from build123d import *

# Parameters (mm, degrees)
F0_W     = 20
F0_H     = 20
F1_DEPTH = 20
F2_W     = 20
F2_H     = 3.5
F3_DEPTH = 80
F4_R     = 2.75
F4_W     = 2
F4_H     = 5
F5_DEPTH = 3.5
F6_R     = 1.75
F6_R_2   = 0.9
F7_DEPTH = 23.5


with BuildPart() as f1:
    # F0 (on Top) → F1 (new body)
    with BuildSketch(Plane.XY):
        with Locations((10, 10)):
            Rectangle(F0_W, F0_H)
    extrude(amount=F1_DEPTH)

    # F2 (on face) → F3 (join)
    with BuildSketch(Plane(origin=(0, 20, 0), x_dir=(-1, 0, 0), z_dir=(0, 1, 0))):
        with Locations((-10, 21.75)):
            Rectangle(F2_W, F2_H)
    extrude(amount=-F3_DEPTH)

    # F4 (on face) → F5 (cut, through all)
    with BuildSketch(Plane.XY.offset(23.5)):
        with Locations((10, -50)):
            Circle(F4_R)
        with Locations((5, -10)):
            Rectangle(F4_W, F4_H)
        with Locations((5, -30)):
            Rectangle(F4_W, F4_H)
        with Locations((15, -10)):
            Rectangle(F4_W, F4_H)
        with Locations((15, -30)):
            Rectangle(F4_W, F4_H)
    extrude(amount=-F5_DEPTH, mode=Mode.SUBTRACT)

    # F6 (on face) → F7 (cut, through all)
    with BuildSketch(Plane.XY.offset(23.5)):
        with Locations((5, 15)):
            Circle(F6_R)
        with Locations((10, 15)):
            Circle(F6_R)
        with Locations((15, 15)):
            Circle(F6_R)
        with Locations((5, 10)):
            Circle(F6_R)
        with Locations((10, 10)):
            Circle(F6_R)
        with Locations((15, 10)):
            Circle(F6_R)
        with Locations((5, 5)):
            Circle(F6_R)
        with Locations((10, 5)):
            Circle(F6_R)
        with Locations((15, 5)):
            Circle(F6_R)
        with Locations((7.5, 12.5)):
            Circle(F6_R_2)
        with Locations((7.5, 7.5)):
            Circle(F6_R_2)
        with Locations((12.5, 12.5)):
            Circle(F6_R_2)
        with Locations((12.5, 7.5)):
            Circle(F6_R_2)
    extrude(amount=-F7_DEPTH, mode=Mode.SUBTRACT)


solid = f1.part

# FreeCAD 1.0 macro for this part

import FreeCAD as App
import Part
import Sketcher
Q = App.Units.Quantity

doc = App.newDocument("Part")
body = doc.addObject("PartDesign::Body", "Body")

sketch1 = body.newObject("Sketcher::SketchObject", "Sketch")
sketch1.AttachmentSupport = (doc.getObject("XY_Plane"), [""])
sketch1.MapMode = "FlatFace"
sketch1.addGeometry(Part.LineSegment(App.Vector(0, 20, 0), App.Vector(0, 0, 0)), False)
sketch1.addGeometry(Part.LineSegment(App.Vector(0, 0, 0), App.Vector(20, 0, 0)), False)
sketch1.addGeometry(Part.LineSegment(App.Vector(20, 0, 0), App.Vector(20, 20, 0)), False)
sketch1.addGeometry(Part.LineSegment(App.Vector(20, 20, 0), App.Vector(0, 20, 0)), False)
sketch1.addConstraint(Sketcher.Constraint("Coincident", 0, 2, 1, 1))
sketch1.addConstraint(Sketcher.Constraint("Coincident", 1, 2, 2, 1))
sketch1.addConstraint(Sketcher.Constraint("Coincident", 2, 2, 3, 1))
sketch1.addConstraint(Sketcher.Constraint("Coincident", 3, 2, 0, 1))
sketch1.addConstraint(Sketcher.Constraint("Vertical", 0))
sketch1.addConstraint(Sketcher.Constraint("Horizontal", 1))
sketch1.addConstraint(Sketcher.Constraint("Vertical", 2))
sketch1.addConstraint(Sketcher.Constraint("Horizontal", 3))
sketch1.addConstraint(Sketcher.Constraint("Coincident", 0, 2, -1, 1))
sketch1.addConstraint(Sketcher.Constraint("Equal", 3, 0))
sketch1.addConstraint(Sketcher.Constraint("DistanceX", 1, 1, 1, 2, Q("20 mm")))
pad1 = body.newObject("PartDesign::Pad", "Pad")
pad1.Profile = sketch1
pad1.Length = 20

sketch2 = body.newObject("Sketcher::SketchObject", "Sketch001")
sketch2.AttachmentSupport = (doc.getObject("XZ_Plane"), [""])
sketch2.MapMode = "FlatFace"
sketch2.AttachmentOffset = App.Placement(App.Vector(0, 0, -20), App.Rotation())
sketch2.addGeometry(Part.LineSegment(App.Vector(20, 23.5, 0), App.Vector(20, 20, 0)), False)
sketch2.addGeometry(Part.LineSegment(App.Vector(20, 20, 0), App.Vector(0, 20, 0)), False)
sketch2.addGeometry(Part.LineSegment(App.Vector(0, 20, 0), App.Vector(0, 23.5, 0)), False)
sketch2.addGeometry(Part.LineSegment(App.Vector(0, 23.5, 0), App.Vector(20, 23.5, 0)), False)
sketch2.addConstraint(Sketcher.Constraint("Coincident", 0, 2, 1, 1))
sketch2.addConstraint(Sketcher.Constraint("Coincident", 1, 2, 2, 1))
sketch2.addConstraint(Sketcher.Constraint("Coincident", 2, 2, 3, 1))
sketch2.addConstraint(Sketcher.Constraint("Coincident", 3, 2, 0, 1))
sketch2.addConstraint(Sketcher.Constraint("Vertical", 0))
sketch2.addConstraint(Sketcher.Constraint("Horizontal", 1))
sketch2.addConstraint(Sketcher.Constraint("Vertical", 2))
sketch2.addConstraint(Sketcher.Constraint("Horizontal", 3))
sketch2.addConstraint(Sketcher.Constraint("PointOnObject", 1, 2, -2))
sketch2.addConstraint(Sketcher.Constraint("DistanceX", 1, 2, 1, 1, Q("20 mm")))
sketch2.addConstraint(Sketcher.Constraint("DistanceY", 0, 2, 0, 1, Q("3.5 mm")))
sketch2.addConstraint(Sketcher.Constraint("DistanceY", -1, 1, 0, 2, Q("20 mm")))
pad2 = body.newObject("PartDesign::Pad", "Pad001")
pad2.Profile = sketch2
pad2.Length = 80

sketch3 = body.newObject("Sketcher::SketchObject", "Sketch002")
sketch3.AttachmentSupport = (doc.getObject("XY_Plane"), [""])
sketch3.MapMode = "FlatFace"
sketch3.AttachmentOffset = App.Placement(App.Vector(0, 0, 23.5), App.Rotation())
sketch3.addGeometry(Part.Circle(App.Vector(10, -50, 0), App.Vector(0, 0, 1), 2.8), False)
sketch3.addGeometry(Part.LineSegment(App.Vector(4, -7.5, 0), App.Vector(4, -12.5, 0)), False)
sketch3.addGeometry(Part.LineSegment(App.Vector(4, -12.5, 0), App.Vector(6, -12.5, 0)), False)
sketch3.addGeometry(Part.LineSegment(App.Vector(6, -12.5, 0), App.Vector(6, -7.5, 0)), False)
sketch3.addGeometry(Part.LineSegment(App.Vector(6, -7.5, 0), App.Vector(4, -7.5, 0)), False)
sketch3.addGeometry(Part.LineSegment(App.Vector(4, -27.5, 0), App.Vector(4, -32.5, 0)), False)
sketch3.addGeometry(Part.LineSegment(App.Vector(4, -32.5, 0), App.Vector(6, -32.5, 0)), False)
sketch3.addGeometry(Part.LineSegment(App.Vector(6, -32.5, 0), App.Vector(6, -27.5, 0)), False)
sketch3.addGeometry(Part.LineSegment(App.Vector(6, -27.5, 0), App.Vector(4, -27.5, 0)), False)
sketch3.addGeometry(Part.LineSegment(App.Vector(14, -7.5, 0), App.Vector(14, -12.5, 0)), False)
sketch3.addGeometry(Part.LineSegment(App.Vector(14, -12.5, 0), App.Vector(16, -12.5, 0)), False)
sketch3.addGeometry(Part.LineSegment(App.Vector(16, -12.5, 0), App.Vector(16, -7.5, 0)), False)
sketch3.addGeometry(Part.LineSegment(App.Vector(16, -7.5, 0), App.Vector(14, -7.5, 0)), False)
sketch3.addGeometry(Part.LineSegment(App.Vector(14, -27.5, 0), App.Vector(14, -32.5, 0)), False)
sketch3.addGeometry(Part.LineSegment(App.Vector(14, -32.5, 0), App.Vector(16, -32.5, 0)), False)
sketch3.addGeometry(Part.LineSegment(App.Vector(16, -32.5, 0), App.Vector(16, -27.5, 0)), False)
sketch3.addGeometry(Part.LineSegment(App.Vector(16, -27.5, 0), App.Vector(14, -27.5, 0)), False)
sketch3.addConstraint(Sketcher.Constraint("Coincident", 1, 2, 2, 1))
sketch3.addConstraint(Sketcher.Constraint("Coincident", 2, 2, 3, 1))
sketch3.addConstraint(Sketcher.Constraint("Coincident", 3, 2, 4, 1))
sketch3.addConstraint(Sketcher.Constraint("Coincident", 4, 2, 1, 1))
sketch3.addConstraint(Sketcher.Constraint("Coincident", 5, 2, 6, 1))
sketch3.addConstraint(Sketcher.Constraint("Coincident", 6, 2, 7, 1))
sketch3.addConstraint(Sketcher.Constraint("Coincident", 7, 2, 8, 1))
sketch3.addConstraint(Sketcher.Constraint("Coincident", 8, 2, 5, 1))
sketch3.addConstraint(Sketcher.Constraint("Coincident", 9, 2, 10, 1))
sketch3.addConstraint(Sketcher.Constraint("Coincident", 10, 2, 11, 1))
sketch3.addConstraint(Sketcher.Constraint("Coincident", 11, 2, 12, 1))
sketch3.addConstraint(Sketcher.Constraint("Coincident", 12, 2, 9, 1))
sketch3.addConstraint(Sketcher.Constraint("Coincident", 13, 2, 14, 1))
sketch3.addConstraint(Sketcher.Constraint("Coincident", 14, 2, 15, 1))
sketch3.addConstraint(Sketcher.Constraint("Coincident", 15, 2, 16, 1))
sketch3.addConstraint(Sketcher.Constraint("Coincident", 16, 2, 13, 1))
sketch3.addConstraint(Sketcher.Constraint("Vertical", 1))
sketch3.addConstraint(Sketcher.Constraint("Horizontal", 2))
sketch3.addConstraint(Sketcher.Constraint("Vertical", 3))
sketch3.addConstraint(Sketcher.Constraint("Horizontal", 4))
sketch3.addConstraint(Sketcher.Constraint("Vertical", 5))
sketch3.addConstraint(Sketcher.Constraint("Horizontal", 6))
sketch3.addConstraint(Sketcher.Constraint("Vertical", 7))
sketch3.addConstraint(Sketcher.Constraint("Horizontal", 8))
sketch3.addConstraint(Sketcher.Constraint("Vertical", 9))
sketch3.addConstraint(Sketcher.Constraint("Horizontal", 10))
sketch3.addConstraint(Sketcher.Constraint("Vertical", 11))
sketch3.addConstraint(Sketcher.Constraint("Horizontal", 12))
sketch3.addConstraint(Sketcher.Constraint("Vertical", 13))
sketch3.addConstraint(Sketcher.Constraint("Horizontal", 14))
sketch3.addConstraint(Sketcher.Constraint("Vertical", 15))
sketch3.addConstraint(Sketcher.Constraint("Horizontal", 16))
sketch3.addConstraint(Sketcher.Constraint("Horizontal", 2, 2, 9, 2))
sketch3.addConstraint(Sketcher.Constraint("Horizontal", 4, 2, 11, 2))
sketch3.addConstraint(Sketcher.Constraint("Horizontal", 6, 2, 13, 2))
sketch3.addConstraint(Sketcher.Constraint("Horizontal", 8, 2, 15, 2))
sketch3.addConstraint(Sketcher.Constraint("Vertical", 4, 2, 5, 2))
sketch3.addConstraint(Sketcher.Constraint("Vertical", 3, 2, 6, 2))
sketch3.addConstraint(Sketcher.Constraint("Vertical", 12, 2, 13, 2))
sketch3.addConstraint(Sketcher.Constraint("Vertical", 11, 2, 14, 2))
sketch3.addConstraint(Sketcher.Constraint("Equal", 8, 10))
sketch3.addConstraint(Sketcher.Constraint("Equal", 3, 5))
sketch3.addConstraint(Sketcher.Constraint("Diameter", 0, Q("5.5 mm")))
sketch3.addConstraint(Sketcher.Constraint("DistanceX", 2, 1, 2, 2, Q("2 mm")))
sketch3.addConstraint(Sketcher.Constraint("DistanceY", 1, 2, 1, 1, Q("5 mm")))
sketch3.addConstraint(Sketcher.Constraint("DistanceX", -1, 1, 0, 3, Q("10 mm")))
sketch3.addConstraint(Sketcher.Constraint("DistanceY", 0, 3, -1, 1, Q("50 mm")))
sketch3.addConstraint(Sketcher.Constraint("DistanceX", -1, 1, 1, 2, Q("4 mm")))
sketch3.addConstraint(Sketcher.Constraint("DistanceX", -1, 1, 9, 2, Q("14 mm")))
sketch3.addConstraint(Sketcher.Constraint("DistanceY", 5, 2, 1, 2, Q("20 mm")))
sketch3.addConstraint(Sketcher.Constraint("DistanceY", 1, 2, -1, 1, Q("12.5 mm")))
pocket1 = body.newObject("PartDesign::Pocket", "Pocket")
pocket1.Profile = sketch3
pocket1.Type = "ThroughAll"

sketch4 = body.newObject("Sketcher::SketchObject", "Sketch003")
sketch4.AttachmentSupport = (doc.getObject("XY_Plane"), [""])
sketch4.MapMode = "FlatFace"
sketch4.AttachmentOffset = App.Placement(App.Vector(0, 0, 23.5), App.Rotation())
sketch4.addGeometry(Part.Circle(App.Vector(5, 15, 0), App.Vector(0, 0, 1), 1.8), False)
sketch4.addGeometry(Part.Circle(App.Vector(10, 15, 0), App.Vector(0, 0, 1), 1.8), False)
sketch4.addGeometry(Part.Circle(App.Vector(15, 15, 0), App.Vector(0, 0, 1), 1.8), False)
sketch4.addGeometry(Part.Circle(App.Vector(5, 10, 0), App.Vector(0, 0, 1), 1.8), False)
sketch4.addGeometry(Part.Circle(App.Vector(10, 10, 0), App.Vector(0, 0, 1), 1.8), False)
sketch4.addGeometry(Part.Circle(App.Vector(15, 10, 0), App.Vector(0, 0, 1), 1.8), False)
sketch4.addGeometry(Part.Circle(App.Vector(5, 5, 0), App.Vector(0, 0, 1), 1.8), False)
sketch4.addGeometry(Part.Circle(App.Vector(10, 5, 0), App.Vector(0, 0, 1), 1.8), False)
sketch4.addGeometry(Part.Circle(App.Vector(15, 5, 0), App.Vector(0, 0, 1), 1.8), False)
sketch4.addGeometry(Part.Circle(App.Vector(7.5, 12.5, 0), App.Vector(0, 0, 1), 0.9), False)
sketch4.addGeometry(Part.Circle(App.Vector(7.5, 7.5, 0), App.Vector(0, 0, 1), 0.9), False)
sketch4.addGeometry(Part.Circle(App.Vector(12.5, 12.5, 0), App.Vector(0, 0, 1), 0.9), False)
sketch4.addGeometry(Part.Circle(App.Vector(12.5, 7.5, 0), App.Vector(0, 0, 1), 0.9), False)
sketch4.addConstraint(Sketcher.Constraint("Equal", 0, 1))
sketch4.addConstraint(Sketcher.Constraint("Equal", 1, 2))
sketch4.addConstraint(Sketcher.Constraint("Equal", 2, 3))
sketch4.addConstraint(Sketcher.Constraint("Equal", 3, 4))
sketch4.addConstraint(Sketcher.Constraint("Equal", 4, 5))
sketch4.addConstraint(Sketcher.Constraint("Equal", 5, 6))
sketch4.addConstraint(Sketcher.Constraint("Equal", 6, 7))
sketch4.addConstraint(Sketcher.Constraint("Equal", 7, 8))
sketch4.addConstraint(Sketcher.Constraint("Equal", 9, 10))
sketch4.addConstraint(Sketcher.Constraint("Equal", 10, 11))
sketch4.addConstraint(Sketcher.Constraint("Equal", 11, 12))
sketch4.addConstraint(Sketcher.Constraint("Horizontal", 0, 3, 1, 3))
sketch4.addConstraint(Sketcher.Constraint("Horizontal", 1, 3, 2, 3))
sketch4.addConstraint(Sketcher.Constraint("Horizontal", 3, 3, 4, 3))
sketch4.addConstraint(Sketcher.Constraint("Horizontal", 4, 3, 5, 3))
sketch4.addConstraint(Sketcher.Constraint("Horizontal", 6, 3, 7, 3))
sketch4.addConstraint(Sketcher.Constraint("Horizontal", 7, 3, 8, 3))
sketch4.addConstraint(Sketcher.Constraint("Horizontal", 9, 3, 11, 3))
sketch4.addConstraint(Sketcher.Constraint("Horizontal", 10, 3, 12, 3))
sketch4.addConstraint(Sketcher.Constraint("Vertical", 0, 3, 3, 3))
sketch4.addConstraint(Sketcher.Constraint("Vertical", 1, 3, 4, 3))
sketch4.addConstraint(Sketcher.Constraint("Vertical", 2, 3, 5, 3))
sketch4.addConstraint(Sketcher.Constraint("Vertical", 3, 3, 6, 3))
sketch4.addConstraint(Sketcher.Constraint("Vertical", 4, 3, 7, 3))
sketch4.addConstraint(Sketcher.Constraint("Vertical", 5, 3, 8, 3))
sketch4.addConstraint(Sketcher.Constraint("Vertical", 9, 3, 10, 3))
sketch4.addConstraint(Sketcher.Constraint("Vertical", 11, 3, 12, 3))
sketch4.addConstraint(Sketcher.Constraint("Diameter", 0, Q("3.5 mm")))
sketch4.addConstraint(Sketcher.Constraint("Diameter", 9, Q("1.8 mm")))
sketch4.addConstraint(Sketcher.Constraint("DistanceX", -1, 1, 0, 3, Q("5 mm")))
sketch4.addConstraint(Sketcher.Constraint("DistanceY", -1, 1, 0, 3, Q("15 mm")))
sketch4.addConstraint(Sketcher.Constraint("DistanceX", -1, 1, 1, 3, Q("10 mm")))
sketch4.addConstraint(Sketcher.Constraint("DistanceX", -1, 1, 2, 3, Q("15 mm")))
sketch4.addConstraint(Sketcher.Constraint("DistanceY", -1, 1, 3, 3, Q("10 mm")))
sketch4.addConstraint(Sketcher.Constraint("DistanceY", -1, 1, 6, 3, Q("5 mm")))
sketch4.addConstraint(Sketcher.Constraint("DistanceY", 10, 3, 9, 3, Q("5 mm")))
sketch4.addConstraint(Sketcher.Constraint("DistanceX", 9, 3, 11, 3, Q("5 mm")))
sketch4.addConstraint(Sketcher.Constraint("DistanceX", -1, 1, 9, 3, Q("7.5 mm")))
sketch4.addConstraint(Sketcher.Constraint("DistanceY", -1, 1, 9, 3, Q("12.5 mm")))
pocket2 = body.newObject("PartDesign::Pocket", "Pocket001")
pocket2.Profile = sketch4
pocket2.Type = "ThroughAll"

doc.recompute()
